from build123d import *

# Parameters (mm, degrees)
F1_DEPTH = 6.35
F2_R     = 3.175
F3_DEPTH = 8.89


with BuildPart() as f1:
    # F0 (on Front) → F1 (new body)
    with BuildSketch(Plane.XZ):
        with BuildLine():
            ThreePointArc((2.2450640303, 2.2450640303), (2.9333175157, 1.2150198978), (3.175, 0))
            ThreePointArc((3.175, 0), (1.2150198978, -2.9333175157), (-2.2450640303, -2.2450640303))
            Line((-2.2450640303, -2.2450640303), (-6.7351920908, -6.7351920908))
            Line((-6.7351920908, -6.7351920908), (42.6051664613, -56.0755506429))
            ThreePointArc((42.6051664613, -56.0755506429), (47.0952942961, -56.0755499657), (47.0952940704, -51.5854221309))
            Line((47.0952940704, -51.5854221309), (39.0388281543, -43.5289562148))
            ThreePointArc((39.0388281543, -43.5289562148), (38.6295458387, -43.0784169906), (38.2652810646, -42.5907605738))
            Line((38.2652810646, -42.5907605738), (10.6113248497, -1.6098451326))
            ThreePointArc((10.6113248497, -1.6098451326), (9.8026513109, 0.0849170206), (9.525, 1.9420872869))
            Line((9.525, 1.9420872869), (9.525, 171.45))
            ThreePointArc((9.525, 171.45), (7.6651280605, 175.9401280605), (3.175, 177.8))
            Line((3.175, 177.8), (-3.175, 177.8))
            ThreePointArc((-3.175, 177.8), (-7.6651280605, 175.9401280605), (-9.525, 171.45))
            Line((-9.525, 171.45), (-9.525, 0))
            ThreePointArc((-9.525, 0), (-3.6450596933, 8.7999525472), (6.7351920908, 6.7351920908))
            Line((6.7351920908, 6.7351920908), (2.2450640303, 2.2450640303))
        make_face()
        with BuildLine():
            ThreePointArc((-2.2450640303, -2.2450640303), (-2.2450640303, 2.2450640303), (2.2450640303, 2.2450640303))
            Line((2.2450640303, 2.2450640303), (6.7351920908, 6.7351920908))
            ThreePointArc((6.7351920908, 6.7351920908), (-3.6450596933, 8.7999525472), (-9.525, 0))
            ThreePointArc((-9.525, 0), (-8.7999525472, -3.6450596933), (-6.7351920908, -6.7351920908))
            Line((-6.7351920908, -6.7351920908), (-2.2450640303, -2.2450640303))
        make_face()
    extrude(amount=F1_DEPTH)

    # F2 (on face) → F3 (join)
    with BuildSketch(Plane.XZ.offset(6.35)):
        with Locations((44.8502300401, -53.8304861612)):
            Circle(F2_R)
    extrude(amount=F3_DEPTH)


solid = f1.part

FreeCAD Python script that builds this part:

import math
import FreeCAD as App
import Part
import Sketcher

V = App.Vector
Q = App.Units.Quantity

doc = App.newDocument("Part")
body = doc.addObject("PartDesign::Body", "Body")

# Sketch on XZ plane
sketch1 = body.newObject("Sketcher::SketchObject", "Sketch")
sketch1.AttachmentSupport = (doc.getObject("XZ_Plane"), [""])
sketch1.MapMode = "FlatFace"
sketch1.addGeometry([
    Part.LineSegment(V(-6.7, -6.7, 0), V(42.6, -56.1, 0)),  # 0
    Part.ArcOfCircle(Part.Circle(V(44.9, -53.8, 0), V(0, 0, 1), 3.2), math.radians(-135), math.radians(45)),  # 1
    Part.LineSegment(V(47.1, -51.6, 0), V(39, -43.5, 0)),  # 2
    Part.ArcOfCircle(Part.Circle(V(43.5, -39, 0), V(0, 0, 1), 6.3), math.radians(-145.99), math.radians(-135)),  # 3
    Part.LineSegment(V(38.3, -42.6, 0), V(10.6, -1.6, 0)),  # 4
    Part.ArcOfCircle(Part.Circle(V(15.9, 1.9, 0), V(0, 0, 1), 6.3), math.radians(180), math.radians(214)),  # 5
    Part.LineSegment(V(9.5, 1.9, 0), V(9.5, 171.4, 0)),  # 6
    Part.ArcOfCircle(Part.Circle(V(3.2, 171.4, 0), V(0, 0, 1), 6.3), math.radians(0), math.radians(90)),  # 7
    Part.LineSegment(V(3.2, 177.8, 0), V(-3.2, 177.8, 0)),  # 8
    Part.ArcOfCircle(Part.Circle(V(-3.2, 171.4, 0), V(0, 0, 1), 6.3), math.radians(90), math.radians(180)),  # 9
    Part.LineSegment(V(-9.5, 171.4, 0), V(-9.5, 0, 0)),  # 10
    Part.ArcOfCircle(Part.Circle(V(0, 0, 0), V(0, 0, 1), 9.5), math.radians(180), math.radians(225)),  # 11
    Part.ArcOfCircle(Part.Circle(V(0, 0, 0), V(0, 0, 1), 3.2), math.radians(0), math.radians(45)),  # 12
    Part.ArcOfCircle(Part.Circle(V(0, 0, 0), V(0, 0, 1), 3.2), math.radians(-135), math.radians(0)),  # 13
    Part.ArcOfCircle(Part.Circle(V(0, 0, 0), V(0, 0, 1), 3.2), math.radians(45), math.radians(225)),  # 14
], False)
sketch1.addConstraint([
    Sketcher.Constraint("Tangent", 0, 2, 1, 1),
    Sketcher.Constraint("Tangent", 1, 2, 2, 1),
    Sketcher.Constraint("Tangent", 2, 2, 3, 2),
    Sketcher.Constraint("Tangent", 3, 1, 4, 1),
    Sketcher.Constraint("Tangent", 4, 2, 5, 2),
    Sketcher.Constraint("Tangent", 5, 1, 6, 1),
    Sketcher.Constraint("Tangent", 6, 2, 7, 1),
    Sketcher.Constraint("Tangent", 7, 2, 8, 1),
    Sketcher.Constraint("Tangent", 8, 2, 9, 1),
    Sketcher.Constraint("Tangent", 9, 2, 10, 1),
    Sketcher.Constraint("Tangent", 10, 2, 11, 1),
    Sketcher.Constraint("Tangent", 11, 2, 0, 1),
    Sketcher.Constraint("Tangent", 12, 1, 13, 2),
    Sketcher.Constraint("Tangent", 13, 1, 14, 2),
    Sketcher.Constraint("Tangent", 14, 1, 12, 2),
    Sketcher.Constraint("Vertical", 6),
    Sketcher.Constraint("Horizontal", 8),
    Sketcher.Constraint("Vertical", 10),
    Sketcher.Constraint("Coincident", 11, 3, -1, 1),
    Sketcher.Constraint("Coincident", 12, 3, -1, 1),
    Sketcher.Constraint("Equal", 3, 5),
    Sketcher.Constraint("Equal", 5, 7),
    Sketcher.Constraint("Equal", 7, 9),
    Sketcher.Constraint("Equal", 1, 12),
    Sketcher.Constraint("PointOnObject", 12, 1, -1),
    Sketcher.Constraint("Parallel", 0, 2),
    Sketcher.Constraint("Vertical", 7, 2, 12, 1),
    Sketcher.Constraint("Radius", 3, Q("0.25 in")),
    Sketcher.Constraint("DistanceY", -1, 1, 7, 2, Q("7 in")),
    Sketcher.Constraint("Angle", 0, Q("-45 deg")),
    Sketcher.Constraint("Radius", 1, Q("0.125 in")),
    Sketcher.Constraint("Radius", 11, Q("0.375 in")),
    Sketcher.Constraint("DistanceX", 2, 2, 1, 3, 5.811402),
    Sketcher.Constraint("DistanceY", 6, 1, 6, 2, 169.507913),
    Sketcher.Constraint("DistanceX", -1, 1, 1, 3, 44.85023),
    Sketcher.Constraint("DistanceX", 13, 1, -1, 1, 2.245064),
    Sketcher.Constraint("DistanceX", -1, 1, 14, 1, 2.245064),
])
pad1 = body.newObject("PartDesign::Pad", "Pad")
pad1.Profile = sketch1
pad1.Length = Q("0.25 in")

# Sketch on XZ plane
sketch2 = body.newObject("Sketcher::SketchObject", "Sketch001")
sketch2.AttachmentSupport = (doc.getObject("XZ_Plane"), [""])
sketch2.MapMode = "FlatFace"
sketch2.AttachmentOffset = App.Placement(V(0, 0, 0.25 * 25.4), App.Rotation())
sketch2.addGeometry(Part.Circle(V(44.9, -53.8, 0), V(0, 0, 1), 3.2), False)
sketch2.addConstraint([
    Sketcher.Constraint("Diameter", 0, Q("0.25 in")),
    Sketcher.Constraint("DistanceX", -1, 1, 0, 3, 44.85023),
    Sketcher.Constraint("DistanceY", 0, 3, -1, 1, 53.830486),
])
pad2 = body.newObject("PartDesign::Pad", "Pad001")
pad2.Profile = sketch2
pad2.Length = Q("0.35 in")

doc.recompute()
